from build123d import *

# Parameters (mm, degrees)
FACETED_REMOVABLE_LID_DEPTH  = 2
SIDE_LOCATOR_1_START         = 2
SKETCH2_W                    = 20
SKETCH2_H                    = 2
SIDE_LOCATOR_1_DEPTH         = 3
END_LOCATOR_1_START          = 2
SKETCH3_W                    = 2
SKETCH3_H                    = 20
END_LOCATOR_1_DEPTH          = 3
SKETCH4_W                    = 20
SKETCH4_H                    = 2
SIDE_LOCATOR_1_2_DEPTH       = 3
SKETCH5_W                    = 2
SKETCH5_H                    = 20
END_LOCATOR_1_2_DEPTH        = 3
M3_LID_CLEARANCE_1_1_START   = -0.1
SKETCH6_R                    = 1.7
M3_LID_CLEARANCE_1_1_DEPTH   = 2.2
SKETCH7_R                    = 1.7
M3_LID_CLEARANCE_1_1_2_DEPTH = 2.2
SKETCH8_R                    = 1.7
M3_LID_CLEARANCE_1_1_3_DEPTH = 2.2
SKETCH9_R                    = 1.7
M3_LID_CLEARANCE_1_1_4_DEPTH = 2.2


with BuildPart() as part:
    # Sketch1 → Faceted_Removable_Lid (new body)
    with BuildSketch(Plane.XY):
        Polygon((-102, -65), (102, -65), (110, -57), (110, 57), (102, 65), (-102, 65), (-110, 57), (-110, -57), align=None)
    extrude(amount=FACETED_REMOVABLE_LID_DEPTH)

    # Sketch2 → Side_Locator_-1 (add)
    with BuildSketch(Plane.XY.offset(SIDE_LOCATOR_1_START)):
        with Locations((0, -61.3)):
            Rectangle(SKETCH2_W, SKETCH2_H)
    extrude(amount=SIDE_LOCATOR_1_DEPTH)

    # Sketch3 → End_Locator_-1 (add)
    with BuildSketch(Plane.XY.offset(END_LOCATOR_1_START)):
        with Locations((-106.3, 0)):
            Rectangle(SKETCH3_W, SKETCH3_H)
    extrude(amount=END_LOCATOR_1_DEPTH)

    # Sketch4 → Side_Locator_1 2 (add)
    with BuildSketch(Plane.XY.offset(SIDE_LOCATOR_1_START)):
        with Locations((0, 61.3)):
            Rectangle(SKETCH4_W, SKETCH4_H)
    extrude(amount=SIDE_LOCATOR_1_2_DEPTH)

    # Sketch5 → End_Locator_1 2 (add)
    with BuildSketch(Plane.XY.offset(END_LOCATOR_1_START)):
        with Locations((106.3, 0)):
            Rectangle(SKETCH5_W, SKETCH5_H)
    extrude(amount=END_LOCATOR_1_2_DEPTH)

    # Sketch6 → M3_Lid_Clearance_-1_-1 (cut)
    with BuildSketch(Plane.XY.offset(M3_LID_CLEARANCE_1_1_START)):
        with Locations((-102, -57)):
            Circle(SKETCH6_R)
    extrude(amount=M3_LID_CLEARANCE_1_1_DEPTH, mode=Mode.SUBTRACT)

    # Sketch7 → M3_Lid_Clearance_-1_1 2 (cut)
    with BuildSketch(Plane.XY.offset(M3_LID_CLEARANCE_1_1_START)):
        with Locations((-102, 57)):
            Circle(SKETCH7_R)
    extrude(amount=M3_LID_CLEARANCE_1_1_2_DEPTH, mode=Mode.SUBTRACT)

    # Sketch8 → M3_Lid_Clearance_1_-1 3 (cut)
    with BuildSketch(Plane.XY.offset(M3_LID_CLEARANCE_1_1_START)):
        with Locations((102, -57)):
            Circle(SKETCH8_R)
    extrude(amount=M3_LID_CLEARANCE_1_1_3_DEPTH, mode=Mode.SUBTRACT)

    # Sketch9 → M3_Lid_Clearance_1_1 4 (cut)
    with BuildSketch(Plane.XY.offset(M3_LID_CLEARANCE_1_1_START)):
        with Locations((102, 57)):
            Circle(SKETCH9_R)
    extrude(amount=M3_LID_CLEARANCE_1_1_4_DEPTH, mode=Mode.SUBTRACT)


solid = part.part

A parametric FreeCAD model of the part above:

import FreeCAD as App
import Part
import Sketcher
Q = App.Units.Quantity


def add_polygon(sketch, points):
    """Adds a closed chain of lines whose ends are joined by coincident constraints."""
    first, n = sketch.GeometryCount, len(points)
    for a, b in zip(points, points[1:] + points[:1]):
        sketch.addGeometry(Part.LineSegment(App.Vector(*a, 0), App.Vector(*b, 0)), False)
    for i in range(n):
        sketch.addConstraint(Sketcher.Constraint("Coincident", first + i, 2, first + (i + 1) % n, 1))

doc = App.newDocument("Part")
params = doc.addObject("Spreadsheet::Sheet", "Params")
for row, (alias, value) in enumerate([
    ("sketch1_width", "204 mm"),
    ("sketch1_height", "114 mm"),
    ("pad1_length", "2 mm"),
    ("sketch2_width", "20 mm"),
    ("sketch2_height", "2 mm"),
    ("pad2_length", "3 mm"),
    ("sketch3_width", "2 mm"),
    ("sketch3_height", "20 mm"),
    ("pad3_length", "3 mm"),
    ("sketch4_width", "20 mm"),
    ("sketch4_height", "2 mm"),
    ("pad4_length", "3 mm"),
    ("sketch5_width", "2 mm"),
    ("sketch5_height", "20 mm"),
    ("pad5_length", "3 mm"),
    ("sketch6_diameter", "3.4 mm"),
    ("pocket1_length", "2.2 mm"),
    ("sketch7_diameter", "3.4 mm"),
    ("pocket2_length", "2.2 mm"),
    ("sketch8_diameter", "3.4 mm"),
    ("pocket3_length", "2.2 mm"),
    ("sketch9_diameter", "3.4 mm"),
    ("pocket4_length", "2.2 mm"),
], start=1):
    params.set(f"A{row}", alias)
    params.set(f"B{row}", "=" + value)
    params.setAlias(f"B{row}", alias)

body = doc.addObject("PartDesign::Body", "Body")

# Sketch on XY plane
sketch1 = body.newObject("Sketcher::SketchObject", "Sketch")
sketch1.AttachmentSupport = (doc.getObject("XY_Plane"), [""])
sketch1.MapMode = "FlatFace"
add_polygon(sketch1, [(-102, -65), (102, -65), (110, -57), (110, 57), (102, 65), (-102, 65), (-110, 57), (-110, -57)])  # lines 0-7
sketch1.addConstraint([
    Sketcher.Constraint("Horizontal", 0),
    Sketcher.Constraint("Vertical", 2),
    Sketcher.Constraint("Horizontal", 4),
    Sketcher.Constraint("Vertical", 6),
    Sketcher.Constraint("Symmetric", 0, 2, 4, 2, -1, 1),
    Sketcher.Constraint("Symmetric", 1, 2, 5, 2, -1, 1),
    Sketcher.Constraint("Perpendicular", 1, 3),
    Sketcher.Constraint("Perpendicular", 5, 7),
    Sketcher.Constraint("Horizontal", 2, 2, 5, 2),
    Sketcher.Constraint("Horizontal", 1, 2, 6, 2),
    Sketcher.Constraint("Vertical", 0, 2, 3, 2),
    Sketcher.Constraint("DistanceX", 0, 1, 0, 2, Q("204 mm")),
    Sketcher.Constraint("DistanceY", 2, 1, 2, 2, Q("114 mm")),
    Sketcher.Constraint("DistanceY", 0, 2, -1, 1, Q("65 mm")),
])
sketch1.setExpression("Constraints[19]", "Params.sketch1_width")
sketch1.setExpression("Constraints[20]", "Params.sketch1_height")
pad1 = body.newObject("PartDesign::Pad", "Pad")
pad1.Profile = sketch1
pad1.setExpression("Length", "Params.pad1_length")

# Sketch on XY plane
sketch2 = body.newObject("Sketcher::SketchObject", "Sketch001")
sketch2.AttachmentSupport = (doc.getObject("XY_Plane"), [""])
sketch2.MapMode = "FlatFace"
sketch2.AttachmentOffset = App.Placement(App.Vector(0, 0, 2), App.Rotation())
add_polygon(sketch2, [(-10, -60.3), (-10, -62.3), (10, -62.3), (10, -60.3)])  # lines 0-3
sketch2.addConstraint([
    Sketcher.Constraint("Vertical", 0),
    Sketcher.Constraint("Horizontal", 1),
    Sketcher.Constraint("Vertical", 2),
    Sketcher.Constraint("Horizontal", 3),
    Sketcher.Constraint("DistanceX", 1, 1, 1, 2, Q("20 mm")),
    Sketcher.Constraint("DistanceY", 0, 2, 0, 1, Q("2 mm")),
    Sketcher.Constraint("DistanceX", 0, 2, -1, 1, Q("10 mm")),
    Sketcher.Constraint("DistanceY", 0, 2, -1, 1, Q("62.3 mm")),
])
sketch2.setExpression("Constraints[8]", "Params.sketch2_width")
sketch2.setExpression("Constraints[9]", "Params.sketch2_height")
pad2 = body.newObject("PartDesign::Pad", "Pad001")
pad2.Profile = sketch2
pad2.setExpression("Length", "Params.pad2_length")

# Sketch on XY plane
sketch3 = body.newObject("Sketcher::SketchObject", "Sketch002")
sketch3.AttachmentSupport = (doc.getObject("XY_Plane"), [""])
sketch3.MapMode = "FlatFace"
sketch3.AttachmentOffset = App.Placement(App.Vector(0, 0, 2), App.Rotation())
add_polygon(sketch3, [(-107.3, 10), (-107.3, -10), (-105.3, -10), (-105.3, 10)])  # lines 0-3
sketch3.addConstraint([
    Sketcher.Constraint("Vertical", 0),
    Sketcher.Constraint("Horizontal", 1),
    Sketcher.Constraint("Vertical", 2),
    Sketcher.Constraint("Horizontal", 3),
    Sketcher.Constraint("DistanceX", 1, 1, 1, 2, Q("2 mm")),
    Sketcher.Constraint("DistanceY", 0, 2, 0, 1, Q("20 mm")),
    Sketcher.Constraint("DistanceY", 0, 2, -1, 1, Q("10 mm")),
    Sketcher.Constraint("DistanceX", 0, 2, -1, 1, Q("107.3 mm")),
])
sketch3.setExpression("Constraints[8]", "Params.sketch3_width")
sketch3.setExpression("Constraints[9]", "Params.sketch3_height")
pad3 = body.newObject("PartDesign::Pad", "Pad002")
pad3.Profile = sketch3
pad3.setExpression("Length", "Params.pad3_length")

# Sketch on XY plane
sketch4 = body.newObject("Sketcher::SketchObject", "Sketch003")
sketch4.AttachmentSupport = (doc.getObject("XY_Plane"), [""])
sketch4.MapMode = "FlatFace"
sketch4.AttachmentOffset = App.Placement(App.Vector(0, 0, 2), App.Rotation())
add_polygon(sketch4, [(-10, 62.3), (-10, 60.3), (10, 60.3), (10, 62.3)])  # lines 0-3
sketch4.addConstraint([
    Sketcher.Constraint("Vertical", 0),
    Sketcher.Constraint("Horizontal", 1),
    Sketcher.Constraint("Vertical", 2),
    Sketcher.Constraint("Horizontal", 3),
    Sketcher.Constraint("DistanceX", 1, 1, 1, 2, Q("20 mm")),
    Sketcher.Constraint("DistanceY", 0, 2, 0, 1, Q("2 mm")),
    Sketcher.Constraint("DistanceX", 0, 2, -1, 1, Q("10 mm")),
    Sketcher.Constraint("DistanceY", -1, 1, 0, 2, Q("60.3 mm")),
])
sketch4.setExpression("Constraints[8]", "Params.sketch4_width")
sketch4.setExpression("Constraints[9]", "Params.sketch4_height")
pad4 = body.newObject("PartDesign::Pad", "Pad003")
pad4.Profile = sketch4
pad4.setExpression("Length", "Params.pad4_length")

# Sketch on XY plane
sketch5 = body.newObject("Sketcher::SketchObject", "Sketch004")
sketch5.AttachmentSupport = (doc.getObject("XY_Plane"), [""])
sketch5.MapMode = "FlatFace"
sketch5.AttachmentOffset = App.Placement(App.Vector(0, 0, 2), App.Rotation())
add_polygon(sketch5, [(105.3, 10), (105.3, -10), (107.3, -10), (107.3, 10)])  # lines 0-3
sketch5.addConstraint([
    Sketcher.Constraint("Vertical", 0),
    Sketcher.Constraint("Horizontal", 1),
    Sketcher.Constraint("Vertical", 2),
    Sketcher.Constraint("Horizontal", 3),
    Sketcher.Constraint("DistanceX", 1, 1, 1, 2, Q("2 mm")),
    Sketcher.Constraint("DistanceY", 0, 2, 0, 1, Q("20 mm")),
    Sketcher.Constraint("DistanceY", 0, 2, -1, 1, Q("10 mm")),
    Sketcher.Constraint("DistanceX", -1, 1, 0, 2, Q("105.3 mm")),
])
sketch5.setExpression("Constraints[8]", "Params.sketch5_width")
sketch5.setExpression("Constraints[9]", "Params.sketch5_height")
pad5 = body.newObject("PartDesign::Pad", "Pad004")
pad5.Profile = sketch5
pad5.setExpression("Length", "Params.pad5_length")

# Sketch on XY plane
sketch6 = body.newObject("Sketcher::SketchObject", "Sketch005")
sketch6.AttachmentSupport = (doc.getObject("XY_Plane"), [""])
sketch6.MapMode = "FlatFace"
sketch6.AttachmentOffset = App.Placement(App.Vector(0, 0, -0.1), App.Rotation())
sketch6.addGeometry(Part.Circle(App.Vector(-102, -57, 0), App.Vector(0, 0, 1), 1.7), False)
sketch6.addConstraint([
    Sketcher.Constraint("Diameter", 0, Q("3.4 mm")),
    Sketcher.Constraint("DistanceX", 0, 3, -1, 1, Q("102 mm")),
    Sketcher.Constraint("DistanceY", 0, 3, -1, 1, Q("57 mm")),
])
sketch6.setExpression("Constraints[0]", "Params.sketch6_diameter")
pocket1 = body.newObject("PartDesign::Pocket", "Pocket")
pocket1.Profile = sketch6
pocket1.setExpression("Length", "Params.pocket1_length")
pocket1.Reversed = True

# Sketch on XY plane
sketch7 = body.newObject("Sketcher::SketchObject", "Sketch006")
sketch7.AttachmentSupport = (doc.getObject("XY_Plane"), [""])
sketch7.MapMode = "FlatFace"
sketch7.AttachmentOffset = App.Placement(App.Vector(0, 0, -0.1), App.Rotation())
sketch7.addGeometry(Part.Circle(App.Vector(-102, 57, 0), App.Vector(0, 0, 1), 1.7), False)
sketch7.addConstraint([
    Sketcher.Constraint("Diameter", 0, Q("3.4 mm")),
    Sketcher.Constraint("DistanceX", 0, 3, -1, 1, Q("102 mm")),
    Sketcher.Constraint("DistanceY", -1, 1, 0, 3, Q("57 mm")),
])
sketch7.setExpression("Constraints[0]", "Params.sketch7_diameter")
pocket2 = body.newObject("PartDesign::Pocket", "Pocket001")
pocket2.Profile = sketch7
pocket2.setExpression("Length", "Params.pocket2_length")
pocket2.Reversed = True

# Sketch on XY plane
sketch8 = body.newObject("Sketcher::SketchObject", "Sketch007")
sketch8.AttachmentSupport = (doc.getObject("XY_Plane"), [""])
sketch8.MapMode = "FlatFace"
sketch8.AttachmentOffset = App.Placement(App.Vector(0, 0, -0.1), App.Rotation())
sketch8.addGeometry(Part.Circle(App.Vector(102, -57, 0), App.Vector(0, 0, 1), 1.7), False)
sketch8.addConstraint([
    Sketcher.Constraint("Diameter", 0, Q("3.4 mm")),
    Sketcher.Constraint("DistanceX", -1, 1, 0, 3, Q("102 mm")),
    Sketcher.Constraint("DistanceY", 0, 3, -1, 1, Q("57 mm")),
])
sketch8.setExpression("Constraints[0]", "Params.sketch8_diameter")
pocket3 = body.newObject("PartDesign::Pocket", "Pocket002")
pocket3.Profile = sketch8
pocket3.setExpression("Length", "Params.pocket3_length")
pocket3.Reversed = True

# Sketch on XY plane
sketch9 = body.newObject("Sketcher::SketchObject", "Sketch008")
sketch9.AttachmentSupport = (doc.getObject("XY_Plane"), [""])
sketch9.MapMode = "FlatFace"
sketch9.AttachmentOffset = App.Placement(App.Vector(0, 0, -0.1), App.Rotation())
sketch9.addGeometry(Part.Circle(App.Vector(102, 57, 0), App.Vector(0, 0, 1), 1.7), False)
sketch9.addConstraint([
    Sketcher.Constraint("Diameter", 0, Q("3.4 mm")),
    Sketcher.Constraint("DistanceX", -1, 1, 0, 3, Q("102 mm")),
    Sketcher.Constraint("DistanceY", -1, 1, 0, 3, Q("57 mm")),
])
sketch9.setExpression("Constraints[0]", "Params.sketch9_diameter")
pocket4 = body.newObject("PartDesign::Pocket", "Pocket003")
pocket4.Profile = sketch9
pocket4.setExpression("Length", "Params.pocket4_length")
pocket4.Reversed = True

doc.recompute()
